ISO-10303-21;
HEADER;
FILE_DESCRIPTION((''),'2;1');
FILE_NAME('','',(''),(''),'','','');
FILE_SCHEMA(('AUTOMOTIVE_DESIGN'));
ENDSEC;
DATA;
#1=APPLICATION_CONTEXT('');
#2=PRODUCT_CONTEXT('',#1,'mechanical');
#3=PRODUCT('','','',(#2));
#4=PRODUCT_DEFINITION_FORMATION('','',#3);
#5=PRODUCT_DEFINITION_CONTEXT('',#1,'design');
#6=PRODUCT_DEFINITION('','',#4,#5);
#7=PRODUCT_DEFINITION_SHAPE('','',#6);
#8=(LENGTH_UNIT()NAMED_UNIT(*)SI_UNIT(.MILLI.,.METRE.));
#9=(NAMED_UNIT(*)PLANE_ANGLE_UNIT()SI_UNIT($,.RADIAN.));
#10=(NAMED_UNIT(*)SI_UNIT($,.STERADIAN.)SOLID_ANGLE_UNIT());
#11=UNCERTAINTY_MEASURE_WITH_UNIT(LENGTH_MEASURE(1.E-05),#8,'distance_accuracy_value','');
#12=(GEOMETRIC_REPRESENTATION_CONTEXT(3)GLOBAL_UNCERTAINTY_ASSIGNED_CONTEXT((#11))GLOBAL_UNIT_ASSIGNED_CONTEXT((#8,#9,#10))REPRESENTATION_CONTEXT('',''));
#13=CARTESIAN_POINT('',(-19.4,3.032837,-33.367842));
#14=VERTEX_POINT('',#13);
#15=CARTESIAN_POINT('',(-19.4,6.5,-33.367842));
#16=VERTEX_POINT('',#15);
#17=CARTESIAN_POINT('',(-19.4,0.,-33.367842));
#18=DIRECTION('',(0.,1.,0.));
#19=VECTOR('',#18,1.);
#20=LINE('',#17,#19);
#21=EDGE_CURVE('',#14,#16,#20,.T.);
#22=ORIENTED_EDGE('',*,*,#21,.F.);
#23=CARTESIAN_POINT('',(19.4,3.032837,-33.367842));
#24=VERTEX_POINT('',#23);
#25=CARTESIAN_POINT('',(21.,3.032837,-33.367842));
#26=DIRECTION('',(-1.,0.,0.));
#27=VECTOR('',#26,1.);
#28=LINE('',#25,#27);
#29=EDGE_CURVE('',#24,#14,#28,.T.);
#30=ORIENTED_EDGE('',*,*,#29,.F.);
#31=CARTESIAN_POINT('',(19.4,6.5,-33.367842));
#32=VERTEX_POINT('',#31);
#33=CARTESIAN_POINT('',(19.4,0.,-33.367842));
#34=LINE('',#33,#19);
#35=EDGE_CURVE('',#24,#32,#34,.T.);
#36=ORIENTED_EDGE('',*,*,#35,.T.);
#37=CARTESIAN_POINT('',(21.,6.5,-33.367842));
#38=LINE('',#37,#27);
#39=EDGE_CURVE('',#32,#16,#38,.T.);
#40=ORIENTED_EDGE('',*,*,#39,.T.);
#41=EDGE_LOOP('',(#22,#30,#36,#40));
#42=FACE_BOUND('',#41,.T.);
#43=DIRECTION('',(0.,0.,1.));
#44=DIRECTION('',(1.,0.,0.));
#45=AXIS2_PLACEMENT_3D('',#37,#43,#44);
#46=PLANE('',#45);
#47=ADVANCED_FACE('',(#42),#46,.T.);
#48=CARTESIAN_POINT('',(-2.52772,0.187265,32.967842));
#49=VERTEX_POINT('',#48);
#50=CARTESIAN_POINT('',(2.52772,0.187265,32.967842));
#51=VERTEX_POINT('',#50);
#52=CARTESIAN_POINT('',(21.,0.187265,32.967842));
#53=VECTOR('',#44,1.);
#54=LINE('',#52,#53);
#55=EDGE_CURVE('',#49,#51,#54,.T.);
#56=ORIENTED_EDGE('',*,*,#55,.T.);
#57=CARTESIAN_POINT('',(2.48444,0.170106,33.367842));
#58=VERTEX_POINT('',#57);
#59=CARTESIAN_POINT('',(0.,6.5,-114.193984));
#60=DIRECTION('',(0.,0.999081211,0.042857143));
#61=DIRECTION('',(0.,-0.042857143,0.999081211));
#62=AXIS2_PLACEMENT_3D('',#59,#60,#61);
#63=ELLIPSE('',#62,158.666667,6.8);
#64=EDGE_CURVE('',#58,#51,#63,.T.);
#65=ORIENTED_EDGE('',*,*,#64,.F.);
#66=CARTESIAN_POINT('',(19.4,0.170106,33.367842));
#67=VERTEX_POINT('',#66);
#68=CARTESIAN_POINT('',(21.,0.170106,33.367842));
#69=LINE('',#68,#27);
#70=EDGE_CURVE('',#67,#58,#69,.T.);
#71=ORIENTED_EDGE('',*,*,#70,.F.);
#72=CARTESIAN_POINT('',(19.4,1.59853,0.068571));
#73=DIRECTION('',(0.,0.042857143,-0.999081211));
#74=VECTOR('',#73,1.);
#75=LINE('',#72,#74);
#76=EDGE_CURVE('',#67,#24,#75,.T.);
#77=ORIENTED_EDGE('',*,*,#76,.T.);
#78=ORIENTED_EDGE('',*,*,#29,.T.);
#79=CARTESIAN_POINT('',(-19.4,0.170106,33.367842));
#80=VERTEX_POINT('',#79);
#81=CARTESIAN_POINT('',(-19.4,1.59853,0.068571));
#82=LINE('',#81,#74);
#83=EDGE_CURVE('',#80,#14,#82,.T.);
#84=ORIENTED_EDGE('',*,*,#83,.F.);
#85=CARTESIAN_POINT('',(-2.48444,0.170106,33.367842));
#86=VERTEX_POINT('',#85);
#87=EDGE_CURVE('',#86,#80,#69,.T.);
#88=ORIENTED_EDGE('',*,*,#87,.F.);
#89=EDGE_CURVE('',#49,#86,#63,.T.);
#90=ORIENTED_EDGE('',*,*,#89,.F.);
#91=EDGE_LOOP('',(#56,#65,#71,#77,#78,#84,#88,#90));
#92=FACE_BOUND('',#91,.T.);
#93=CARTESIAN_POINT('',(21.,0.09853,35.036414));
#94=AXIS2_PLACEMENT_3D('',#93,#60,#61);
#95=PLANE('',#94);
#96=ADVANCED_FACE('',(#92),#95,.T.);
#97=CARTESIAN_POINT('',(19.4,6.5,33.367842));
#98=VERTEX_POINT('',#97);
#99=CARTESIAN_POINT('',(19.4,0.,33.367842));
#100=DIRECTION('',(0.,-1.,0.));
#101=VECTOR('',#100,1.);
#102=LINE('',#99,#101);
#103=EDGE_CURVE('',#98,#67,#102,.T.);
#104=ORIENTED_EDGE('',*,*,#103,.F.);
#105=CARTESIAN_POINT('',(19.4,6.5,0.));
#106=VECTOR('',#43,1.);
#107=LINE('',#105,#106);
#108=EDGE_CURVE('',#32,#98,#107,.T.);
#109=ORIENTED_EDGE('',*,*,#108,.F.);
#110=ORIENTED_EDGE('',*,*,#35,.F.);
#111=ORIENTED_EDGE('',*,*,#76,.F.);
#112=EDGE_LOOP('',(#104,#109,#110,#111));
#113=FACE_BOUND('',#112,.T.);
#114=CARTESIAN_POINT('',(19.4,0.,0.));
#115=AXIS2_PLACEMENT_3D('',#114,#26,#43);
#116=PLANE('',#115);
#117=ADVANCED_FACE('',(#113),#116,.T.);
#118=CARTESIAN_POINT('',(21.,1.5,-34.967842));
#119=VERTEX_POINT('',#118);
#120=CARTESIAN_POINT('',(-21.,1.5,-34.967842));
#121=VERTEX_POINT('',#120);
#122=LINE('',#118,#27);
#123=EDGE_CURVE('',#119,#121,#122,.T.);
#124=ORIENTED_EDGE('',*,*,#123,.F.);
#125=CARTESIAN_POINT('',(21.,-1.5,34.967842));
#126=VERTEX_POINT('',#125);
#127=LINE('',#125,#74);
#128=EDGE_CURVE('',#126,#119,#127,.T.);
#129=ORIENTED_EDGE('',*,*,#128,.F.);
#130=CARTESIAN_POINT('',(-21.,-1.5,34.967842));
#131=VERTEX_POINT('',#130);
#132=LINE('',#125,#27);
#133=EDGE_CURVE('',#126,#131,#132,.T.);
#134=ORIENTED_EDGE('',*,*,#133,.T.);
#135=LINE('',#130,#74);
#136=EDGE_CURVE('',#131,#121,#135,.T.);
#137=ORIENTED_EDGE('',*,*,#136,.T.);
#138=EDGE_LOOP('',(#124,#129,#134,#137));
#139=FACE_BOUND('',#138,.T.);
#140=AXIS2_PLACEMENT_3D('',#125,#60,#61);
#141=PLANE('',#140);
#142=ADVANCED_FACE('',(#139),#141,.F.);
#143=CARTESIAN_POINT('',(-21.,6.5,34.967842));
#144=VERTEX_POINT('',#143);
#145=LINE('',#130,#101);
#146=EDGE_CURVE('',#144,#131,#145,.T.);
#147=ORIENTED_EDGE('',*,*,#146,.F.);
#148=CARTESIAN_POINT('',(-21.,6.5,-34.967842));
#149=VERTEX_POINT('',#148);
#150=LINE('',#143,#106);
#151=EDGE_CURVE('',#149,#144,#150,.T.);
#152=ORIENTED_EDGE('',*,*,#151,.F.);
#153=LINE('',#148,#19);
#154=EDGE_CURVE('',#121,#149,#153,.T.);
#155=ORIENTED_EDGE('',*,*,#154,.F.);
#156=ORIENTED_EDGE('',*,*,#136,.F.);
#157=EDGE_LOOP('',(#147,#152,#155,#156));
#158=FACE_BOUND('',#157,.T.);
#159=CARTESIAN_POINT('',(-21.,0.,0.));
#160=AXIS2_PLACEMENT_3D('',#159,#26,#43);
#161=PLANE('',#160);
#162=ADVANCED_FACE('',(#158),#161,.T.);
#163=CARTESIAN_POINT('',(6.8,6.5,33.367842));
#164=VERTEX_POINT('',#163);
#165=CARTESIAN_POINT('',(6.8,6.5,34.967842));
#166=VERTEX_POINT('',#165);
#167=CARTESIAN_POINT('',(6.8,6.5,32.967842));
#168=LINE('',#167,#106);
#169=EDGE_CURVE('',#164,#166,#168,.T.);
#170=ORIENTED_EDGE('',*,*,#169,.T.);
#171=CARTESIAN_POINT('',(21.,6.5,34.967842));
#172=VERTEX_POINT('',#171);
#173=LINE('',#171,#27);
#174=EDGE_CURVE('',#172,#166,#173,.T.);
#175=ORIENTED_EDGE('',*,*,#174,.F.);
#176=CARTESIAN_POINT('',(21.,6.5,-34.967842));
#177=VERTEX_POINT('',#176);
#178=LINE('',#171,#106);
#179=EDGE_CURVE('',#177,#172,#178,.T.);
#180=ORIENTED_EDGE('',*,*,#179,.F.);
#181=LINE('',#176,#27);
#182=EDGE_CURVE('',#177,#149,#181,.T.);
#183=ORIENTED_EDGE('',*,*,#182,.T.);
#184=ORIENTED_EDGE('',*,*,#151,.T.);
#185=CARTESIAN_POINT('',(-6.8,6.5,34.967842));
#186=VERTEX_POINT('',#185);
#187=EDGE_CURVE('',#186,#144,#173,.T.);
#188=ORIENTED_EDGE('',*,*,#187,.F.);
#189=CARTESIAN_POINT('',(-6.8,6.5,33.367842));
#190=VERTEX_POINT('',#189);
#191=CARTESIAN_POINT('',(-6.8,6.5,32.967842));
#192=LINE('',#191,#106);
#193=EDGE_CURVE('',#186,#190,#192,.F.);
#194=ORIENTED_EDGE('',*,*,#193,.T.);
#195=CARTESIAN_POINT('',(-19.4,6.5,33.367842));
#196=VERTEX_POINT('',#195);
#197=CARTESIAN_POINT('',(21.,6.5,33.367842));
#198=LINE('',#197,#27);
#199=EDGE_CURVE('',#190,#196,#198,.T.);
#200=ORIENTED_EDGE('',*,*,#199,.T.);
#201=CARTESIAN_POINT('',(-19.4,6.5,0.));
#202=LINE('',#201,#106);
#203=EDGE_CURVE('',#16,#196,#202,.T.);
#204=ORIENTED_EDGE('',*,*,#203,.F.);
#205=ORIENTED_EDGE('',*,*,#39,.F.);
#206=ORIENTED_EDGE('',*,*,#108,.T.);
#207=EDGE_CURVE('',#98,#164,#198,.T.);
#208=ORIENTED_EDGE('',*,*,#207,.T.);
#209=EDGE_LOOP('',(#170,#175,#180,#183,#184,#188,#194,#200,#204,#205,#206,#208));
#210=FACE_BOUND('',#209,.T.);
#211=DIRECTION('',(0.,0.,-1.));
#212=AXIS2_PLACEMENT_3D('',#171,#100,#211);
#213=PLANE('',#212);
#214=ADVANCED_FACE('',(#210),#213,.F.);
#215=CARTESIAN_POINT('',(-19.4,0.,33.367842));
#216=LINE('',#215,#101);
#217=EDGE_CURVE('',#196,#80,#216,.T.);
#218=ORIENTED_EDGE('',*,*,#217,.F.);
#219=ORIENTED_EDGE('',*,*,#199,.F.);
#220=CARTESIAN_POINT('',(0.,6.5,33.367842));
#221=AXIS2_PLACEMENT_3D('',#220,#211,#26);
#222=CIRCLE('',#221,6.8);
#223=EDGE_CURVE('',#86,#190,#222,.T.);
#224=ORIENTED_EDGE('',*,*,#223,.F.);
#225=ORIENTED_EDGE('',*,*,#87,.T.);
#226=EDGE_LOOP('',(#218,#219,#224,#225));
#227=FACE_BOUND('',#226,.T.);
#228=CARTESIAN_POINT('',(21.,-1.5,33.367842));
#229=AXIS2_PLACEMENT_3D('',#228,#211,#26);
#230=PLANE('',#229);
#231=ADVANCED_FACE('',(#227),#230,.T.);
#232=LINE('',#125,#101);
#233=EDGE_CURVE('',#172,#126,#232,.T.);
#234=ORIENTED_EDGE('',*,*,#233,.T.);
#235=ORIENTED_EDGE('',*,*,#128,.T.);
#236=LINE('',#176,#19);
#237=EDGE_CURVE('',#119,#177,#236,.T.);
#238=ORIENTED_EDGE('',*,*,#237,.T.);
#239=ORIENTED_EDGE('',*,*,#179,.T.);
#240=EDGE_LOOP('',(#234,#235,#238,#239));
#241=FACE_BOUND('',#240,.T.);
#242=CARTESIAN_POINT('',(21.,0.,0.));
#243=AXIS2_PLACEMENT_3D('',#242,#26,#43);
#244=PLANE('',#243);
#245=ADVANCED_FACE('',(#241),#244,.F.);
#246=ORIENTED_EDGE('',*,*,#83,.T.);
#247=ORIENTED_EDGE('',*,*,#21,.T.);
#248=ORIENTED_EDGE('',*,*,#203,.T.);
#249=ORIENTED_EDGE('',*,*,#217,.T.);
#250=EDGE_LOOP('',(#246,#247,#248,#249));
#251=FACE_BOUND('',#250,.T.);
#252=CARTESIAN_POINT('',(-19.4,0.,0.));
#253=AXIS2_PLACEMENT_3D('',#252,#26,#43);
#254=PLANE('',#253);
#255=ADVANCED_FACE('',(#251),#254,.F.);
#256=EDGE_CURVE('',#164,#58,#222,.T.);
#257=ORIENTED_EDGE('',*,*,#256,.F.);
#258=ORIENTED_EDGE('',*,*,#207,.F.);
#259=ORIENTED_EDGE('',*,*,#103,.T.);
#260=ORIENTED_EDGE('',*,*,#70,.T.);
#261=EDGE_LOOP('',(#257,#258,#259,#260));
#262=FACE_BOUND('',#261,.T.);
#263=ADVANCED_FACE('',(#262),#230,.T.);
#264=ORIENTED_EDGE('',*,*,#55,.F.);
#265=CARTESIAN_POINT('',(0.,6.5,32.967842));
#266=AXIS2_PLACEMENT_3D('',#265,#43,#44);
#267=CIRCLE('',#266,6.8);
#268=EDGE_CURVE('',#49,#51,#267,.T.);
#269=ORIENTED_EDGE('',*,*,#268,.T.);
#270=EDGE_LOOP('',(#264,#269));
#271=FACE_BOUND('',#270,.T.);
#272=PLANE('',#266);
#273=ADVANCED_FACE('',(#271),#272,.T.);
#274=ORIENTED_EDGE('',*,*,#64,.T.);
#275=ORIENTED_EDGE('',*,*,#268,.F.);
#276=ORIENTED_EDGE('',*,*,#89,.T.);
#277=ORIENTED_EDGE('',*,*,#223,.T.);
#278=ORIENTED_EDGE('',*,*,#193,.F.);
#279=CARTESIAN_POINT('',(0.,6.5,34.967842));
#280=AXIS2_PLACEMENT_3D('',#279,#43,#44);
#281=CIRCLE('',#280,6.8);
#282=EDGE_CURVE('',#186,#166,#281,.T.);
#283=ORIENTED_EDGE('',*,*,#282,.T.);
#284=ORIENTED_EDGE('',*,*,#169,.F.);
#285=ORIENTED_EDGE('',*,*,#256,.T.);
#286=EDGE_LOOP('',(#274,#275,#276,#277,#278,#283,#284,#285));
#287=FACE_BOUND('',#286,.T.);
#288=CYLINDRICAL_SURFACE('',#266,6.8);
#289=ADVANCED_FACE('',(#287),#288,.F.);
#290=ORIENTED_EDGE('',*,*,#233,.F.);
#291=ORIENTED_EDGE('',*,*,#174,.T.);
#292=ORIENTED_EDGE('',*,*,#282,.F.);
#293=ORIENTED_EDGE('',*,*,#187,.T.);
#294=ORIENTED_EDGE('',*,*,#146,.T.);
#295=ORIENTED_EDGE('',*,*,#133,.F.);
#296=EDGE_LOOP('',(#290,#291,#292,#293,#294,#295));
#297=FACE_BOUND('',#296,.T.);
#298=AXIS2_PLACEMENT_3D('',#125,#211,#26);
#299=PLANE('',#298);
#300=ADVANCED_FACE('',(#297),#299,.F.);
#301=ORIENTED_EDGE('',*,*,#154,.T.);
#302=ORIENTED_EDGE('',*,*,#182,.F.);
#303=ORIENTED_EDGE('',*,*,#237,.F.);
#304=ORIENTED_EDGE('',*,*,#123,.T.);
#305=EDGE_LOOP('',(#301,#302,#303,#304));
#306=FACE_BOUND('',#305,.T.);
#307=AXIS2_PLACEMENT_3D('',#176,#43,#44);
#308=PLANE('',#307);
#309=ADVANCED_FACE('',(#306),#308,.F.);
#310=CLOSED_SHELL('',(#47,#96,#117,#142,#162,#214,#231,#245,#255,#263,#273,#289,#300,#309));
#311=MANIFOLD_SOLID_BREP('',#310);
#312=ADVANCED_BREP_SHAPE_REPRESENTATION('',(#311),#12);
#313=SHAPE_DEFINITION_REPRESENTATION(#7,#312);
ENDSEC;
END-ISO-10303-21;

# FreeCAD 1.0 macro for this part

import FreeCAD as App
import Part
import Sketcher
from FreeCAD import Vector
Q = App.Units.Quantity


def faces_at(feature, points):
    """Names of the faces that lie closest to the given points."""
    faces = feature.Shape.Faces
    near = lambda p: min(range(len(faces)), key=lambda i: faces[i].distToShape(Part.Vertex(*p))[0])
    return sorted({f"Face{near(p) + 1}" for p in points})

doc = App.newDocument("Part")
body = doc.addObject("PartDesign::Body", "Body")

# Sketch on YZ plane
sketch1 = body.newObject("Sketcher::SketchObject", "Sketch")
sketch1.AttachmentSupport = (doc.getObject("YZ_Plane"), [""])
sketch1.MapMode = "FlatFace"
sketch1.addGeometry([
    Part.LineSegment(Vector(-2, 35, 0), Vector(2, -35, 0)),
    Part.LineSegment(Vector(2, -35, 0), Vector(6, -35, 0)),
    Part.LineSegment(Vector(6, -35, 0), Vector(6, 35, 0)),
    Part.LineSegment(Vector(6, 35, 0), Vector(-2, 35, 0)),
], False)
sketch1.addConstraint([
    Sketcher.Constraint("Coincident", 0, 2, 1, 1),
    Sketcher.Constraint("Coincident", 1, 2, 2, 1),
    Sketcher.Constraint("Coincident", 2, 2, 3, 1),
    Sketcher.Constraint("Coincident", 3, 2, 0, 1),
    Sketcher.Constraint("Horizontal", 1),
    Sketcher.Constraint("Vertical", 2),
    Sketcher.Constraint("Horizontal", 3),
    Sketcher.Constraint("Symmetric", 0, 2, 3, 2, -1, 1),
    Sketcher.Constraint("DistanceX", 1, 1, 1, 2, Q("5 mm")),
    Sketcher.Constraint("DistanceX", 3, 2, 3, 1, Q("8 mm")),
    Sketcher.Constraint("Distance", 0, Q("70 mm")),
])
pad1 = body.newObject("PartDesign::Pad", "Pad")
pad1.Profile = sketch1
pad1.Length = 42
pad1.Midplane = True
doc.recompute()

thickness = body.newObject("PartDesign::Thickness", "Thickness")
thickness.Base = (pad1, faces_at(pad1, [(0, 6.5, 0)]))
thickness.Value = 1.6
thickness.Reversed = True
thickness.Join = "Intersection"

# Sketch on XY plane
sketch2 = body.newObject("Sketcher::SketchObject", "Sketch001")
sketch2.AttachmentSupport = (doc.getObject("XY_Plane"), [""])
sketch2.MapMode = "FlatFace"
sketch2.AttachmentOffset = App.Placement(Vector(0, 0, 34.967842), App.Rotation())
sketch2.addGeometry(Part.Circle(Vector(0, 6, 0), Vector(0, 0, 1), 7), False)
sketch2.addConstraint([
    Sketcher.Constraint("PointOnObject", 0, 3, -2),
    Sketcher.Constraint("Diameter", 0, Q("13.6 mm")),
    Sketcher.Constraint("DistanceY", -1, 1, 0, 3, Q("6.5 mm")),
])
pocket1 = body.newObject("PartDesign::Pocket", "Pocket")
pocket1.Profile = sketch2
pocket1.Length = 2

doc.recompute()
